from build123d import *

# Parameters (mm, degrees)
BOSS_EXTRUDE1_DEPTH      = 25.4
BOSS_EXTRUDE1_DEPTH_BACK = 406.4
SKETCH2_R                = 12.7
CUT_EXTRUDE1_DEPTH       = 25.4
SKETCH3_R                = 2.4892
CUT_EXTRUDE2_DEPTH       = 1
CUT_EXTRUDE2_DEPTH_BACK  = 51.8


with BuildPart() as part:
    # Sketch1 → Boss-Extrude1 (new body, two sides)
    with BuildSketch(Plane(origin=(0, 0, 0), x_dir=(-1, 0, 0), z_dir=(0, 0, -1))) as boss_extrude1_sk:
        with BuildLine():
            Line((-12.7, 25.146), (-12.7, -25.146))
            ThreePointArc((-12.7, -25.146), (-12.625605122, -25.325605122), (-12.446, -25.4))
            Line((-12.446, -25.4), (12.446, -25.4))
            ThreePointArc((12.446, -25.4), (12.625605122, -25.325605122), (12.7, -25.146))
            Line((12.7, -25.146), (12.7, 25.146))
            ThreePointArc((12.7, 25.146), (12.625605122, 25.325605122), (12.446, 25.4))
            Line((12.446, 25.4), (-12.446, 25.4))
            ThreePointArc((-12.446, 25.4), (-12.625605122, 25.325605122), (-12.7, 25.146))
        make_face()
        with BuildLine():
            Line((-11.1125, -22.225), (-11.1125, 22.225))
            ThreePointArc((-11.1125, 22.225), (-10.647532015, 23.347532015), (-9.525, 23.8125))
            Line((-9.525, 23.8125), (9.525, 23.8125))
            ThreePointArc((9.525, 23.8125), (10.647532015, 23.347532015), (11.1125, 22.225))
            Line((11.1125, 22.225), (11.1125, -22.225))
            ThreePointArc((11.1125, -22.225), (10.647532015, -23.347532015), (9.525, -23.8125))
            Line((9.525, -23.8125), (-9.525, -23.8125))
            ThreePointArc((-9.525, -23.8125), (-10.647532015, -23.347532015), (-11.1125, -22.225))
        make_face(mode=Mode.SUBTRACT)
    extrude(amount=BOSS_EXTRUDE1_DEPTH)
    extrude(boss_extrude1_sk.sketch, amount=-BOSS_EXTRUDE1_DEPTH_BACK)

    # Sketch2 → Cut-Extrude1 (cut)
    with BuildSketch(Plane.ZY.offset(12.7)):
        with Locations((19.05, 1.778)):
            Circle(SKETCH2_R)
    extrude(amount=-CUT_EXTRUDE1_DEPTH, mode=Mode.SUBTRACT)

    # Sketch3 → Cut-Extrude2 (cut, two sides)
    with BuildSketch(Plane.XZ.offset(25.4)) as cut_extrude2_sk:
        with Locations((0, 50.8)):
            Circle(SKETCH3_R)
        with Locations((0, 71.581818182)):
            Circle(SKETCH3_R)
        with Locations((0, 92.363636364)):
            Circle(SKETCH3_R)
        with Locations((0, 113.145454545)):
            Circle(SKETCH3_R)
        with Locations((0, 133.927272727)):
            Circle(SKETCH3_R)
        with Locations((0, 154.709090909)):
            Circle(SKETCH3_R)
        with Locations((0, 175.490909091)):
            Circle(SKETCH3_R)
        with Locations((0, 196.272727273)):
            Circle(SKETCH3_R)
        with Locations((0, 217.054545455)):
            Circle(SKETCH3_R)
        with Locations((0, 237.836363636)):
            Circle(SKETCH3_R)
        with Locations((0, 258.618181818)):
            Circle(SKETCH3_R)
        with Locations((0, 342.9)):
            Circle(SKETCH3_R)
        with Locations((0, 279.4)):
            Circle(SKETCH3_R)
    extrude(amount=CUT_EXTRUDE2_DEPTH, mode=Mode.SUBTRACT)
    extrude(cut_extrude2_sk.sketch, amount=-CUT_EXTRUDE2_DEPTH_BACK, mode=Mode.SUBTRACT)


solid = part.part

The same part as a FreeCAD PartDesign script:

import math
import FreeCAD as App
import Part
import Sketcher
from FreeCAD import Vector
Q = App.Units.Quantity

doc = App.newDocument("Part")
body = doc.addObject("PartDesign::Body", "Body")

sketch1 = body.newObject("Sketcher::SketchObject", "Sketch")
sketch1.AttachmentSupport = (doc.getObject("XY_Plane"), [""])
sketch1.MapMode = "FlatFace"
sketch1.addGeometry([
    Part.LineSegment(Vector(12.7, 25.15, 0), Vector(12.7, -25.15, 0)),
    Part.ArcOfCircle(Part.Circle(Vector(12.45, -25.15, 0), Vector(0, 0, 1), 0.25), math.radians(-90), math.radians(0)),
    Part.LineSegment(Vector(12.45, -25.4, 0), Vector(-12.45, -25.4, 0)),
    Part.ArcOfCircle(Part.Circle(Vector(-12.45, -25.15, 0), Vector(0, 0, 1), 0.25), math.radians(-180), math.radians(-90)),
    Part.LineSegment(Vector(-12.7, -25.15, 0), Vector(-12.7, 25.15, 0)),
    Part.ArcOfCircle(Part.Circle(Vector(-12.45, 25.15, 0), Vector(0, 0, 1), 0.25), math.radians(90), math.radians(180)),
    Part.LineSegment(Vector(-12.45, 25.4, 0), Vector(12.45, 25.4, 0)),
    Part.ArcOfCircle(Part.Circle(Vector(12.45, 25.15, 0), Vector(0, 0, 1), 0.25), math.radians(0), math.radians(90)),
    Part.ArcOfCircle(Part.Circle(Vector(9.53, -22.23, 0), Vector(0, 0, 1), 1.59), math.radians(-90), math.radians(0)),
    Part.LineSegment(Vector(11.11, -22.23, 0), Vector(11.11, 22.23, 0)),
    Part.ArcOfCircle(Part.Circle(Vector(9.53, 22.23, 0), Vector(0, 0, 1), 1.59), math.radians(0), math.radians(90)),
    Part.LineSegment(Vector(9.53, 23.81, 0), Vector(-9.53, 23.81, 0)),
    Part.ArcOfCircle(Part.Circle(Vector(-9.53, 22.23, 0), Vector(0, 0, 1), 1.59), math.radians(90), math.radians(180)),
    Part.LineSegment(Vector(-11.11, 22.23, 0), Vector(-11.11, -22.23, 0)),
    Part.ArcOfCircle(Part.Circle(Vector(-9.53, -22.23, 0), Vector(0, 0, 1), 1.59), math.radians(180), math.radians(270)),
    Part.LineSegment(Vector(-9.53, -23.81, 0), Vector(9.53, -23.81, 0)),
], False)
sketch1.addConstraint([
    Sketcher.Constraint("Tangent", 0, 2, 1, 2),
    Sketcher.Constraint("Tangent", 1, 1, 2, 1),
    Sketcher.Constraint("Tangent", 2, 2, 3, 2),
    Sketcher.Constraint("Tangent", 3, 1, 4, 1),
    Sketcher.Constraint("Tangent", 4, 2, 5, 2),
    Sketcher.Constraint("Tangent", 5, 1, 6, 1),
    Sketcher.Constraint("Tangent", 6, 2, 7, 2),
    Sketcher.Constraint("Tangent", 7, 1, 0, 1),
    Sketcher.Constraint("Tangent", 8, 2, 9, 1),
    Sketcher.Constraint("Tangent", 9, 2, 10, 1),
    Sketcher.Constraint("Tangent", 10, 2, 11, 1),
    Sketcher.Constraint("Tangent", 11, 2, 12, 1),
    Sketcher.Constraint("Tangent", 12, 2, 13, 1),
    Sketcher.Constraint("Tangent", 13, 2, 14, 1),
    Sketcher.Constraint("Tangent", 14, 2, 15, 1),
    Sketcher.Constraint("Tangent", 15, 2, 8, 1),
    Sketcher.Constraint("Vertical", 0),
    Sketcher.Constraint("Horizontal", 2),
    Sketcher.Constraint("Vertical", 4),
    Sketcher.Constraint("Horizontal", 6),
    Sketcher.Constraint("Vertical", 9),
    Sketcher.Constraint("Horizontal", 11),
    Sketcher.Constraint("Vertical", 13),
    Sketcher.Constraint("Horizontal", 15),
    Sketcher.Constraint("Equal", 1, 3),
    Sketcher.Constraint("Equal", 3, 5),
    Sketcher.Constraint("Equal", 5, 7),
    Sketcher.Constraint("Equal", 8, 10),
    Sketcher.Constraint("Equal", 10, 12),
    Sketcher.Constraint("Equal", 12, 14),
    Sketcher.Constraint("Symmetric", 1, 3, 5, 3, -1, 1),
    Sketcher.Constraint("Symmetric", 8, 3, 12, 3, -1, 1),
    Sketcher.Constraint("Radius", 1, Q("0.01 in")),
    Sketcher.Constraint("DistanceY", 1, 1, -1, 1, Q("1 in")),
    Sketcher.Constraint("Radius", 8, Q("0.0625 in")),
    Sketcher.Constraint("DistanceX", 2, 2, 2, 1, Q("0.98 in")),
    Sketcher.Constraint("DistanceX", 11, 2, 11, 1, Q("0.75 in")),
    Sketcher.Constraint("DistanceY", 9, 1, 9, 2, Q("1.75 in")),
])
pad1 = body.newObject("PartDesign::Pad", "Pad")
pad1.Profile = sketch1
pad1.Type = "TwoLengths"
pad1.Length = Q("1 in")
pad1.Length2 = Q("16 in")
pad1.Reversed = True

sketch2 = body.newObject("Sketcher::SketchObject", "Sketch001")
sketch2.AttachmentSupport = (doc.getObject("YZ_Plane"), [""])
sketch2.MapMode = "FlatFace"
sketch2.AttachmentOffset = App.Placement(Vector(0, 0, -0.5 * 25.4), App.Rotation())
sketch2.addGeometry(Part.Circle(Vector(2, 19, 0), Vector(0, 0, 1), 13), False)
sketch2.addConstraint([
    Sketcher.Constraint("Diameter", 0, Q("1 in")),
    Sketcher.Constraint("DistanceX", -1, 1, 0, 3, Q("0.07 in")),
    Sketcher.Constraint("DistanceY", -1, 1, 0, 3, Q("0.75 in")),
])
pocket1 = body.newObject("PartDesign::Pocket", "Pocket")
pocket1.Profile = sketch2
pocket1.Length = Q("1 in")
pocket1.Reversed = True

sketch3 = body.newObject("Sketcher::SketchObject", "Sketch002")
sketch3.AttachmentSupport = (doc.getObject("XZ_Plane"), [""])
sketch3.MapMode = "FlatFace"
sketch3.AttachmentOffset = App.Placement(Vector(0, 0, 1 * 25.4), App.Rotation())
sketch3.addGeometry([
    Part.Circle(Vector(0, 50.8, 0), Vector(0, 0, 1), 2.5),
    Part.Circle(Vector(0, 71.6, 0), Vector(0, 0, 1), 2.5),
    Part.Circle(Vector(0, 92.4, 0), Vector(0, 0, 1), 2.5),
    Part.Circle(Vector(0, 113.1, 0), Vector(0, 0, 1), 2.5),
    Part.Circle(Vector(0, 133.9, 0), Vector(0, 0, 1), 2.5),
    Part.Circle(Vector(0, 154.7, 0), Vector(0, 0, 1), 2.5),
    Part.Circle(Vector(0, 175.5, 0), Vector(0, 0, 1), 2.5),
    Part.Circle(Vector(0, 196.3, 0), Vector(0, 0, 1), 2.5),
    Part.Circle(Vector(0, 217.1, 0), Vector(0, 0, 1), 2.5),
    Part.Circle(Vector(0, 237.8, 0), Vector(0, 0, 1), 2.5),
    Part.Circle(Vector(0, 258.6, 0), Vector(0, 0, 1), 2.5),
    Part.Circle(Vector(0, 342.9, 0), Vector(0, 0, 1), 2.5),
    Part.Circle(Vector(0, 279.4, 0), Vector(0, 0, 1), 2.5),
], False)
sketch3.addConstraint([
    Sketcher.Constraint("Equal", 0, 1),
    Sketcher.Constraint("Equal", 1, 2),
    Sketcher.Constraint("Equal", 2, 3),
    Sketcher.Constraint("Equal", 3, 4),
    Sketcher.Constraint("Equal", 4, 5),
    Sketcher.Constraint("Equal", 5, 6),
    Sketcher.Constraint("Equal", 6, 7),
    Sketcher.Constraint("Equal", 7, 8),
    Sketcher.Constraint("Equal", 8, 9),
    Sketcher.Constraint("Equal", 9, 10),
    Sketcher.Constraint("Equal", 10, 11),
    Sketcher.Constraint("Equal", 11, 12),
    Sketcher.Constraint("PointOnObject", 0, 3, -2),
    Sketcher.Constraint("PointOnObject", 1, 3, -2),
    Sketcher.Constraint("PointOnObject", 2, 3, -2),
    Sketcher.Constraint("PointOnObject", 3, 3, -2),
    Sketcher.Constraint("PointOnObject", 4, 3, -2),
    Sketcher.Constraint("PointOnObject", 5, 3, -2),
    Sketcher.Constraint("PointOnObject", 6, 3, -2),
    Sketcher.Constraint("PointOnObject", 7, 3, -2),
    Sketcher.Constraint("PointOnObject", 8, 3, -2),
    Sketcher.Constraint("PointOnObject", 9, 3, -2),
    Sketcher.Constraint("PointOnObject", 10, 3, -2),
    Sketcher.Constraint("PointOnObject", 11, 3, -2),
    Sketcher.Constraint("PointOnObject", 12, 3, -2),
    Sketcher.Constraint("Diameter", 0, Q("0.196 in")),
    Sketcher.Constraint("DistanceY", -1, 1, 0, 3, Q("2 in")),
    Sketcher.Constraint("DistanceY", -1, 1, 12, 3, Q("11 in")),
    Sketcher.Constraint("DistanceY", -1, 1, 11, 3, Q("13.5 in")),
    Sketcher.Constraint("DistanceY", -1, 1, 1, 3, 71.581818),
    Sketcher.Constraint("DistanceY", -1, 1, 5, 3, 154.709091),
    Sketcher.Constraint("DistanceY", -1, 1, 6, 3, 175.490909),
    Sketcher.Constraint("DistanceY", -1, 1, 10, 3, 258.618182),
    Sketcher.Constraint("DistanceY", 1, 3, 2, 3, 20.781818),
    Sketcher.Constraint("DistanceY", 2, 3, 3, 3, 20.781818),
    Sketcher.Constraint("DistanceY", 3, 3, 4, 3, 20.781818),
    Sketcher.Constraint("DistanceY", 6, 3, 7, 3, 20.781818),
    Sketcher.Constraint("DistanceY", 7, 3, 8, 3, 20.781818),
    Sketcher.Constraint("DistanceY", 8, 3, 9, 3, 20.781818),
])
pocket2 = body.newObject("PartDesign::Pocket", "Pocket001")
pocket2.Profile = sketch3
pocket2.Type = "ThroughAll"
pocket2.Midplane = True

doc.recompute()
